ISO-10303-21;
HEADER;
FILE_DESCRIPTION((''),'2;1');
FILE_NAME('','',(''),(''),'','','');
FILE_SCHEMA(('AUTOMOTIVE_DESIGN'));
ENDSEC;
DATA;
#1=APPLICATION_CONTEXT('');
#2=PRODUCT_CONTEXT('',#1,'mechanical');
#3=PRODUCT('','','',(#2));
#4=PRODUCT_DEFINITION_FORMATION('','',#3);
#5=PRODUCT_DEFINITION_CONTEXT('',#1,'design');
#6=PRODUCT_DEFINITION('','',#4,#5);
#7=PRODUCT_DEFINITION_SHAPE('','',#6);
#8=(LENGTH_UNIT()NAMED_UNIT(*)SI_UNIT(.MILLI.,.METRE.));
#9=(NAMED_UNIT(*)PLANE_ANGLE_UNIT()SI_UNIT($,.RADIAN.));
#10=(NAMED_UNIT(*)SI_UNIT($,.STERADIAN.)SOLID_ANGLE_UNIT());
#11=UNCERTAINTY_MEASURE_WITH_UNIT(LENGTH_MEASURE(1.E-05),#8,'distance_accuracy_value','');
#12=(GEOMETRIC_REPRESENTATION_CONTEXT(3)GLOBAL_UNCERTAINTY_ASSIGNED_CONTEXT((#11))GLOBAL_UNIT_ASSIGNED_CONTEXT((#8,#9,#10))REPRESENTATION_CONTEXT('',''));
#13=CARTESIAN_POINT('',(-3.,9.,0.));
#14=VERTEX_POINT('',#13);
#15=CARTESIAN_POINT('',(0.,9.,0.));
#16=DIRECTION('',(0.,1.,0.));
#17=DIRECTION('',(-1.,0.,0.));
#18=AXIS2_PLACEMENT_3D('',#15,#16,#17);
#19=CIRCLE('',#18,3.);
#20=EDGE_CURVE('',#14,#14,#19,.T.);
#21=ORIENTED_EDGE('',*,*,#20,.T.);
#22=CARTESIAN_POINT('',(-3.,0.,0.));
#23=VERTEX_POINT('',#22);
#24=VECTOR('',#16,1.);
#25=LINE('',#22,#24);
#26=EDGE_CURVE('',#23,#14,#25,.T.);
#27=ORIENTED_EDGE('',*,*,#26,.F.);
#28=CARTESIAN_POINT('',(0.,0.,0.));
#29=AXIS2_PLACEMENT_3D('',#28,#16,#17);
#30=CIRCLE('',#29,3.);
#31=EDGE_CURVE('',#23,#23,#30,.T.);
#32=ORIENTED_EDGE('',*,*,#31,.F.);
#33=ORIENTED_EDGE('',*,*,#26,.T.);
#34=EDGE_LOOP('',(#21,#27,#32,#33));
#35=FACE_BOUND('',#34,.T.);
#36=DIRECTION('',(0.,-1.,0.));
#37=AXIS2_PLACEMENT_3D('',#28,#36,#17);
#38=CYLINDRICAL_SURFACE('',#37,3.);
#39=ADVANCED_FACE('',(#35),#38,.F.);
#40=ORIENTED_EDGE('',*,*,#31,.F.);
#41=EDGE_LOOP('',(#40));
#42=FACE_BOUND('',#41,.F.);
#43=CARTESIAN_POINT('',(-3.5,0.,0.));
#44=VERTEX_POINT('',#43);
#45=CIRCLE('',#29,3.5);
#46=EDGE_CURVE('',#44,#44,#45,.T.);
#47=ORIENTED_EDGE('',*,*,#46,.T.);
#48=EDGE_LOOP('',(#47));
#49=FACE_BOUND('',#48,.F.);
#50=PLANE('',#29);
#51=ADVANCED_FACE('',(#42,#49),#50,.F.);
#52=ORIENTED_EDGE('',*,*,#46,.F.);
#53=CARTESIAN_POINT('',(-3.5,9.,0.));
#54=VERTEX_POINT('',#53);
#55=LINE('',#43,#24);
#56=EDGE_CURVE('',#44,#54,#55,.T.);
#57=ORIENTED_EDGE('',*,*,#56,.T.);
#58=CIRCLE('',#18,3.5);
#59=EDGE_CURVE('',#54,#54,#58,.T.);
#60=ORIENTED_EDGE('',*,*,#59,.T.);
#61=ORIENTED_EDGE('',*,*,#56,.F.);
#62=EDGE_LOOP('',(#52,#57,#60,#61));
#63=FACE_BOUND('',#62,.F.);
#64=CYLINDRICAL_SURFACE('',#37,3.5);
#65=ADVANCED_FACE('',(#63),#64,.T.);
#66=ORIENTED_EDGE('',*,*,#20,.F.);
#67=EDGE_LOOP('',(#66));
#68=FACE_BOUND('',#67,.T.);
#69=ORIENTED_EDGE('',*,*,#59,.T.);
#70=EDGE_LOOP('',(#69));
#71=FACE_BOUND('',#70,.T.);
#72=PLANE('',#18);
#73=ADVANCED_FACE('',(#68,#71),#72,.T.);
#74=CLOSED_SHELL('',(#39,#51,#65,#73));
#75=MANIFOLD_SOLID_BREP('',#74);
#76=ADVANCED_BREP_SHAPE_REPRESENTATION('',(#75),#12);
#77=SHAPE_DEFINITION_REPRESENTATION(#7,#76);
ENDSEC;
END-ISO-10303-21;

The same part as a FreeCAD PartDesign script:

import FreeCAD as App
import Part
import Sketcher
from FreeCAD import Vector

doc = App.newDocument("Part")
body = doc.addObject("PartDesign::Body", "Body")

# Sketch on XZ plane
sketch1 = body.newObject("Sketcher::SketchObject", "Sketch")
sketch1.AttachmentSupport = (doc.getObject("XZ_Plane"), [""])
sketch1.MapMode = "FlatFace"
sketch1.addGeometry([
    Part.Circle(Vector(0, 0, 0), Vector(0, 0, 1), 3.5),
    Part.Circle(Vector(0, 0, 0), Vector(0, 0, 1), 3),
], False)
sketch1.addConstraint([
    Sketcher.Constraint("Coincident", 0, 3, -1, 1),
    Sketcher.Constraint("Coincident", 1, 3, -1, 1),
    Sketcher.Constraint("Diameter", 0, 7.0),
    Sketcher.Constraint("Diameter", 1, 6.0),
])
pad1 = body.newObject("PartDesign::Pad", "Pad")
pad1.Profile = sketch1
pad1.Length = 9
pad1.Reversed = True

doc.recompute()
